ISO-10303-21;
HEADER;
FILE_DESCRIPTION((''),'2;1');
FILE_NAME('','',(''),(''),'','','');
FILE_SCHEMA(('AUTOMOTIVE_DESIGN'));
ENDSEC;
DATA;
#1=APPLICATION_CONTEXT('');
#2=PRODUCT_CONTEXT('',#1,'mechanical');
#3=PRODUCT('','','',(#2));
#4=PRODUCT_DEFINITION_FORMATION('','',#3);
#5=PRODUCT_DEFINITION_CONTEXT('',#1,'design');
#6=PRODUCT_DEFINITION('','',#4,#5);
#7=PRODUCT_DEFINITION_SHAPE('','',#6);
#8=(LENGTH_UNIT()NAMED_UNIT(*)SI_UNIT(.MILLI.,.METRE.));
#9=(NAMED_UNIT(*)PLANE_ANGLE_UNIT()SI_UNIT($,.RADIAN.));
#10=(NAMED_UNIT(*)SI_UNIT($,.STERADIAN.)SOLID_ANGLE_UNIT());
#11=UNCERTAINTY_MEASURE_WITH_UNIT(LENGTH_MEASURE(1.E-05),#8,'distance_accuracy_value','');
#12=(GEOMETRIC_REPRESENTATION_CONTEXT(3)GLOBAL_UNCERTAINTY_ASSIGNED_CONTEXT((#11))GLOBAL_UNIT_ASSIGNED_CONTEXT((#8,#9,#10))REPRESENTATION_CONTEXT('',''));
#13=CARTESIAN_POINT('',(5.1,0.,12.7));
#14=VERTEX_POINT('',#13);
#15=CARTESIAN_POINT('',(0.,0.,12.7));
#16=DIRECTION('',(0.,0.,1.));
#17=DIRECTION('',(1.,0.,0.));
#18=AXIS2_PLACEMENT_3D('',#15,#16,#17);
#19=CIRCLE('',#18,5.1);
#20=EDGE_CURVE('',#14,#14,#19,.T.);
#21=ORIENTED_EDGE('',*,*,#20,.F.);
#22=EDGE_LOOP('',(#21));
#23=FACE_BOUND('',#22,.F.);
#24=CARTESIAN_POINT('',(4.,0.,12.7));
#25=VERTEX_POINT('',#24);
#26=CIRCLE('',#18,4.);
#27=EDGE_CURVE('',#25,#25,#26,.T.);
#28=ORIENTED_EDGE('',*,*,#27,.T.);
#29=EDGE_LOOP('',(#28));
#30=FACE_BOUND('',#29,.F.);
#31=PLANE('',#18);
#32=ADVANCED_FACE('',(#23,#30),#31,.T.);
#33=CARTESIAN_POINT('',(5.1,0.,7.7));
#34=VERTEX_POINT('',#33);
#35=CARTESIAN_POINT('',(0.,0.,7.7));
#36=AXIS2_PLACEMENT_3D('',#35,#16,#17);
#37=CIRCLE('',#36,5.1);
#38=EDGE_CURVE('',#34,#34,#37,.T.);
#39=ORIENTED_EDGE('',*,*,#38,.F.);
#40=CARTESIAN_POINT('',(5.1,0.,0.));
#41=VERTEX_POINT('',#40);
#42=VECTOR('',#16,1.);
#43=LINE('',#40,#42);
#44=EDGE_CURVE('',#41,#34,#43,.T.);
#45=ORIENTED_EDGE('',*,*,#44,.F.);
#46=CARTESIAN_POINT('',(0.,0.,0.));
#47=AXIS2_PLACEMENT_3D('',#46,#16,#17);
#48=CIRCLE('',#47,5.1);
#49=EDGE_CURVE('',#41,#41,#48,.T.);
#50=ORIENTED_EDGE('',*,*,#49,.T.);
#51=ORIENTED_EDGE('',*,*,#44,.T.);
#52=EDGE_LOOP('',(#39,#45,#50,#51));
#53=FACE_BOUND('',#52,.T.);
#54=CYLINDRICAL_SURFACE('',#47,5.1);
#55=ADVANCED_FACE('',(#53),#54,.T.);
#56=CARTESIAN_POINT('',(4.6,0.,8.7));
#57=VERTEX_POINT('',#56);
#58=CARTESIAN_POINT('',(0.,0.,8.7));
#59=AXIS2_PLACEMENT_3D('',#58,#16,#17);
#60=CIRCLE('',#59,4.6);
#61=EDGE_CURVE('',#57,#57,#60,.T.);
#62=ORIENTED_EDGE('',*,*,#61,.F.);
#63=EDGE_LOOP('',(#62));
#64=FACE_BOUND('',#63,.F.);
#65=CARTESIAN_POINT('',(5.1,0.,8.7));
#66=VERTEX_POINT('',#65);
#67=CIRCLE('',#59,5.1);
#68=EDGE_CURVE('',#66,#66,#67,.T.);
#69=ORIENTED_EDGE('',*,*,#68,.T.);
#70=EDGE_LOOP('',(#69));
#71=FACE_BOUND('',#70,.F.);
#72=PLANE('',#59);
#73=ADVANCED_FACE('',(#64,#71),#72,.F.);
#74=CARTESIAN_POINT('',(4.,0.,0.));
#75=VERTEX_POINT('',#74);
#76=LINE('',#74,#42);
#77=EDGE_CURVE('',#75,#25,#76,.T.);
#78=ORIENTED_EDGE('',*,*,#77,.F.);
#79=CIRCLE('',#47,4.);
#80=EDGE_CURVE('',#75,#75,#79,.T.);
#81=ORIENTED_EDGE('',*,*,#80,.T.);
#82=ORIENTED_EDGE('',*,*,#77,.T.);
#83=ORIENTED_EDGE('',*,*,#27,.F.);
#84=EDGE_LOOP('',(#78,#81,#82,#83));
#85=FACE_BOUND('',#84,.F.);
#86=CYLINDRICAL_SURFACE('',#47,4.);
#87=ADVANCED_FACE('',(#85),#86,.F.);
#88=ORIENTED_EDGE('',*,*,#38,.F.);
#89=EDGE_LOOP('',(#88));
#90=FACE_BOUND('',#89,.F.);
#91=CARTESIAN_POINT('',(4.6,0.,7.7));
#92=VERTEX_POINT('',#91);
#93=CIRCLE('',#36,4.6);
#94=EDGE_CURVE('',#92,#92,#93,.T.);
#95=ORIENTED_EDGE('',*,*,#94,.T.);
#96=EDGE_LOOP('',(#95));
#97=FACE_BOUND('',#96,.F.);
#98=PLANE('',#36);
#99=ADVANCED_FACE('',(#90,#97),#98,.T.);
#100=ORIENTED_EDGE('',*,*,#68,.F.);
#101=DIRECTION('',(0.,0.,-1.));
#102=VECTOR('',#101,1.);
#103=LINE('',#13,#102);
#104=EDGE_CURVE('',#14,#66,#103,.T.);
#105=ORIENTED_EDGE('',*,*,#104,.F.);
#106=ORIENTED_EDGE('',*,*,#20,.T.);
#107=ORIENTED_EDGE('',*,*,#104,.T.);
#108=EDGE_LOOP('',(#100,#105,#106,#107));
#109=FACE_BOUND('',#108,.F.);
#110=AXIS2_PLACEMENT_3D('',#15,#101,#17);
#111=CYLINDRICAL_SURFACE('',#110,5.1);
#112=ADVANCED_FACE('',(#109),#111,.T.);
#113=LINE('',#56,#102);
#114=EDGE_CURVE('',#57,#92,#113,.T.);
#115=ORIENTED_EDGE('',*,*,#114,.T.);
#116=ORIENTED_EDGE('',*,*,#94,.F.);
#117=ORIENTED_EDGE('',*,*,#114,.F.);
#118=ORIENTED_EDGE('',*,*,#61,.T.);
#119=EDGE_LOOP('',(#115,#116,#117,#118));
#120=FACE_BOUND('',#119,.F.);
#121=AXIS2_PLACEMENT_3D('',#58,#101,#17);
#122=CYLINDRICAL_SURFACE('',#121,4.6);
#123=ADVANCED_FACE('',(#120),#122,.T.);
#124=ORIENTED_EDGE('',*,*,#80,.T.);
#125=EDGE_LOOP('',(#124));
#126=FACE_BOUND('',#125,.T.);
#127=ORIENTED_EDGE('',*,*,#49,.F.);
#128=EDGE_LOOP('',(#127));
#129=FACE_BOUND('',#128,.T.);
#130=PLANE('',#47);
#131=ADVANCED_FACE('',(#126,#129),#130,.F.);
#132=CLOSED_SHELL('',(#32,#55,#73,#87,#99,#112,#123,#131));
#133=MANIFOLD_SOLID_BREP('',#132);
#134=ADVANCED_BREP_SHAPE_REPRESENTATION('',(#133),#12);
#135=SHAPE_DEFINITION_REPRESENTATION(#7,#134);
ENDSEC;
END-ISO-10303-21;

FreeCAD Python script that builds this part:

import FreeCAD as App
import Part
import Sketcher

V = App.Vector


def add_polygon(sketch, points):
    """Adds a closed chain of lines whose ends are joined by coincident constraints."""
    first, n = sketch.GeometryCount, len(points)
    for a, b in zip(points, points[1:] + points[:1]):
        sketch.addGeometry(Part.LineSegment(App.Vector(*a, 0), App.Vector(*b, 0)), False)
    for i in range(n):
        sketch.addConstraint(Sketcher.Constraint("Coincident", first + i, 2, first + (i + 1) % n, 1))

doc = App.newDocument("Part")
body = doc.addObject("PartDesign::Body", "Body")

# Sketch on XZ plane
sketch1 = body.newObject("Sketcher::SketchObject", "Sketch")
sketch1.AttachmentSupport = (doc.getObject("XZ_Plane"), [""])
sketch1.MapMode = "FlatFace"
add_polygon(sketch1, [(5.1, 0), (4, 0), (4, 12.7), (5.1, 12.7), (5.1, 8.7), (4.6, 8.7), (4.6, 7.7), (5.1, 7.7)])  # lines 0-7
sketch1.addConstraint(Sketcher.Constraint("Horizontal", 0))
sketch1.addConstraint(Sketcher.Constraint("Vertical", 1))
sketch1.addConstraint(Sketcher.Constraint("Horizontal", 2))
sketch1.addConstraint(Sketcher.Constraint("Vertical", 3))
sketch1.addConstraint(Sketcher.Constraint("Horizontal", 4))
sketch1.addConstraint(Sketcher.Constraint("Vertical", 5))
sketch1.addConstraint(Sketcher.Constraint("Horizontal", 6))
sketch1.addConstraint(Sketcher.Constraint("Vertical", 7))
sketch1.addConstraint(Sketcher.Constraint("PointOnObject", 0, 2, -1))
sketch1.addConstraint(Sketcher.Constraint("Vertical", 3, 2, 6, 2))
sketch1.addConstraint(Sketcher.Constraint("DistanceY", 3, 2, 3, 1, 4.0))
sketch1.addConstraint(Sketcher.Constraint("DistanceY", 5, 2, 5, 1, 1.0))
sketch1.addConstraint(Sketcher.Constraint("DistanceX", 4, 2, 4, 1, 0.5))
sketch1.addConstraint(Sketcher.Constraint("DistanceY", 1, 1, 1, 2, 12.7))
sketch1.addConstraint(Sketcher.Constraint("DistanceX", -1, 1, 0, 2, 4.0))
sketch1.addConstraint(Sketcher.Constraint("DistanceX", -1, 1, 2, 2, 5.1))
revolution = body.newObject("PartDesign::Revolution", "Revolution")
revolution.Profile = sketch1
revolution.ReferenceAxis = (sketch1, ["V_Axis"])
revolution.Angle = 360

doc.recompute()
